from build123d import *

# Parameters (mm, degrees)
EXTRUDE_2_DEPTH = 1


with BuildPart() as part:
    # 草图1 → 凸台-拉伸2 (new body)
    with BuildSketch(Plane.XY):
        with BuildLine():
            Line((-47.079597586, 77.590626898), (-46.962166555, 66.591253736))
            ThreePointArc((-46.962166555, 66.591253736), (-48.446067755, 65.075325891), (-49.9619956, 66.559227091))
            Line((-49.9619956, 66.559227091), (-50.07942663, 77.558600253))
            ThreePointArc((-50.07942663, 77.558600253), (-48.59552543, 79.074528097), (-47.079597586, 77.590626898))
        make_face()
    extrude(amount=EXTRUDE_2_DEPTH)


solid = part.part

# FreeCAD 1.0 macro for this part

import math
import FreeCAD as App
import Part
import Sketcher
Q = App.Units.Quantity

doc = App.newDocument("Part")
body = doc.addObject("PartDesign::Body", "Body")

# Sketch on XY plane
sketch1 = doc.addObject("Sketcher::SketchObject", "Sketch")
body.addObject(sketch1)
sketch1.AttachmentSupport = (doc.XY_Plane, [""])
sketch1.MapMode = "FlatFace"
sketch1.addGeometry([
    Part.LineSegment(App.Vector(-47, 66.6, 0), App.Vector(-47.1, 77.6, 0)),
    Part.ArcOfCircle(Part.Circle(App.Vector(-48.6, 77.6, 0), App.Vector(0, 0, 1), 1.5), math.radians(1), math.radians(181)),
    Part.LineSegment(App.Vector(-50.1, 77.6, 0), App.Vector(-50, 66.6, 0)),
    Part.ArcOfCircle(Part.Circle(App.Vector(-48.5, 66.6, 0), App.Vector(0, 0, 1), 1.5), math.radians(-179), math.radians(1)),
], False)
sketch1.addConstraint([
    Sketcher.Constraint("Tangent", 0, 2, 1, 1),
    Sketcher.Constraint("Tangent", 1, 2, 2, 1),
    Sketcher.Constraint("Tangent", 2, 2, 3, 1),
    Sketcher.Constraint("Tangent", 3, 2, 0, 1),
    Sketcher.Constraint("Equal", 1, 3),
    Sketcher.Constraint("Radius", 1, Q("1.5 mm")),
    Sketcher.Constraint("Distance", 0, Q("11 mm")),
    Sketcher.Constraint("DistanceY", -1, 1, 1, 2, Q("77.5586 mm")),
    Sketcher.Constraint("DistanceX", 2, 2, 0, 2, Q("2.882398 mm")),
    Sketcher.Constraint("DistanceX", 3, 3, -1, 1, Q("48.462081 mm")),
])
pad1 = doc.addObject("PartDesign::Pad", "Pad")
body.addObject(pad1)
pad1.Profile = sketch1
pad1.Length = 1

doc.recompute()
